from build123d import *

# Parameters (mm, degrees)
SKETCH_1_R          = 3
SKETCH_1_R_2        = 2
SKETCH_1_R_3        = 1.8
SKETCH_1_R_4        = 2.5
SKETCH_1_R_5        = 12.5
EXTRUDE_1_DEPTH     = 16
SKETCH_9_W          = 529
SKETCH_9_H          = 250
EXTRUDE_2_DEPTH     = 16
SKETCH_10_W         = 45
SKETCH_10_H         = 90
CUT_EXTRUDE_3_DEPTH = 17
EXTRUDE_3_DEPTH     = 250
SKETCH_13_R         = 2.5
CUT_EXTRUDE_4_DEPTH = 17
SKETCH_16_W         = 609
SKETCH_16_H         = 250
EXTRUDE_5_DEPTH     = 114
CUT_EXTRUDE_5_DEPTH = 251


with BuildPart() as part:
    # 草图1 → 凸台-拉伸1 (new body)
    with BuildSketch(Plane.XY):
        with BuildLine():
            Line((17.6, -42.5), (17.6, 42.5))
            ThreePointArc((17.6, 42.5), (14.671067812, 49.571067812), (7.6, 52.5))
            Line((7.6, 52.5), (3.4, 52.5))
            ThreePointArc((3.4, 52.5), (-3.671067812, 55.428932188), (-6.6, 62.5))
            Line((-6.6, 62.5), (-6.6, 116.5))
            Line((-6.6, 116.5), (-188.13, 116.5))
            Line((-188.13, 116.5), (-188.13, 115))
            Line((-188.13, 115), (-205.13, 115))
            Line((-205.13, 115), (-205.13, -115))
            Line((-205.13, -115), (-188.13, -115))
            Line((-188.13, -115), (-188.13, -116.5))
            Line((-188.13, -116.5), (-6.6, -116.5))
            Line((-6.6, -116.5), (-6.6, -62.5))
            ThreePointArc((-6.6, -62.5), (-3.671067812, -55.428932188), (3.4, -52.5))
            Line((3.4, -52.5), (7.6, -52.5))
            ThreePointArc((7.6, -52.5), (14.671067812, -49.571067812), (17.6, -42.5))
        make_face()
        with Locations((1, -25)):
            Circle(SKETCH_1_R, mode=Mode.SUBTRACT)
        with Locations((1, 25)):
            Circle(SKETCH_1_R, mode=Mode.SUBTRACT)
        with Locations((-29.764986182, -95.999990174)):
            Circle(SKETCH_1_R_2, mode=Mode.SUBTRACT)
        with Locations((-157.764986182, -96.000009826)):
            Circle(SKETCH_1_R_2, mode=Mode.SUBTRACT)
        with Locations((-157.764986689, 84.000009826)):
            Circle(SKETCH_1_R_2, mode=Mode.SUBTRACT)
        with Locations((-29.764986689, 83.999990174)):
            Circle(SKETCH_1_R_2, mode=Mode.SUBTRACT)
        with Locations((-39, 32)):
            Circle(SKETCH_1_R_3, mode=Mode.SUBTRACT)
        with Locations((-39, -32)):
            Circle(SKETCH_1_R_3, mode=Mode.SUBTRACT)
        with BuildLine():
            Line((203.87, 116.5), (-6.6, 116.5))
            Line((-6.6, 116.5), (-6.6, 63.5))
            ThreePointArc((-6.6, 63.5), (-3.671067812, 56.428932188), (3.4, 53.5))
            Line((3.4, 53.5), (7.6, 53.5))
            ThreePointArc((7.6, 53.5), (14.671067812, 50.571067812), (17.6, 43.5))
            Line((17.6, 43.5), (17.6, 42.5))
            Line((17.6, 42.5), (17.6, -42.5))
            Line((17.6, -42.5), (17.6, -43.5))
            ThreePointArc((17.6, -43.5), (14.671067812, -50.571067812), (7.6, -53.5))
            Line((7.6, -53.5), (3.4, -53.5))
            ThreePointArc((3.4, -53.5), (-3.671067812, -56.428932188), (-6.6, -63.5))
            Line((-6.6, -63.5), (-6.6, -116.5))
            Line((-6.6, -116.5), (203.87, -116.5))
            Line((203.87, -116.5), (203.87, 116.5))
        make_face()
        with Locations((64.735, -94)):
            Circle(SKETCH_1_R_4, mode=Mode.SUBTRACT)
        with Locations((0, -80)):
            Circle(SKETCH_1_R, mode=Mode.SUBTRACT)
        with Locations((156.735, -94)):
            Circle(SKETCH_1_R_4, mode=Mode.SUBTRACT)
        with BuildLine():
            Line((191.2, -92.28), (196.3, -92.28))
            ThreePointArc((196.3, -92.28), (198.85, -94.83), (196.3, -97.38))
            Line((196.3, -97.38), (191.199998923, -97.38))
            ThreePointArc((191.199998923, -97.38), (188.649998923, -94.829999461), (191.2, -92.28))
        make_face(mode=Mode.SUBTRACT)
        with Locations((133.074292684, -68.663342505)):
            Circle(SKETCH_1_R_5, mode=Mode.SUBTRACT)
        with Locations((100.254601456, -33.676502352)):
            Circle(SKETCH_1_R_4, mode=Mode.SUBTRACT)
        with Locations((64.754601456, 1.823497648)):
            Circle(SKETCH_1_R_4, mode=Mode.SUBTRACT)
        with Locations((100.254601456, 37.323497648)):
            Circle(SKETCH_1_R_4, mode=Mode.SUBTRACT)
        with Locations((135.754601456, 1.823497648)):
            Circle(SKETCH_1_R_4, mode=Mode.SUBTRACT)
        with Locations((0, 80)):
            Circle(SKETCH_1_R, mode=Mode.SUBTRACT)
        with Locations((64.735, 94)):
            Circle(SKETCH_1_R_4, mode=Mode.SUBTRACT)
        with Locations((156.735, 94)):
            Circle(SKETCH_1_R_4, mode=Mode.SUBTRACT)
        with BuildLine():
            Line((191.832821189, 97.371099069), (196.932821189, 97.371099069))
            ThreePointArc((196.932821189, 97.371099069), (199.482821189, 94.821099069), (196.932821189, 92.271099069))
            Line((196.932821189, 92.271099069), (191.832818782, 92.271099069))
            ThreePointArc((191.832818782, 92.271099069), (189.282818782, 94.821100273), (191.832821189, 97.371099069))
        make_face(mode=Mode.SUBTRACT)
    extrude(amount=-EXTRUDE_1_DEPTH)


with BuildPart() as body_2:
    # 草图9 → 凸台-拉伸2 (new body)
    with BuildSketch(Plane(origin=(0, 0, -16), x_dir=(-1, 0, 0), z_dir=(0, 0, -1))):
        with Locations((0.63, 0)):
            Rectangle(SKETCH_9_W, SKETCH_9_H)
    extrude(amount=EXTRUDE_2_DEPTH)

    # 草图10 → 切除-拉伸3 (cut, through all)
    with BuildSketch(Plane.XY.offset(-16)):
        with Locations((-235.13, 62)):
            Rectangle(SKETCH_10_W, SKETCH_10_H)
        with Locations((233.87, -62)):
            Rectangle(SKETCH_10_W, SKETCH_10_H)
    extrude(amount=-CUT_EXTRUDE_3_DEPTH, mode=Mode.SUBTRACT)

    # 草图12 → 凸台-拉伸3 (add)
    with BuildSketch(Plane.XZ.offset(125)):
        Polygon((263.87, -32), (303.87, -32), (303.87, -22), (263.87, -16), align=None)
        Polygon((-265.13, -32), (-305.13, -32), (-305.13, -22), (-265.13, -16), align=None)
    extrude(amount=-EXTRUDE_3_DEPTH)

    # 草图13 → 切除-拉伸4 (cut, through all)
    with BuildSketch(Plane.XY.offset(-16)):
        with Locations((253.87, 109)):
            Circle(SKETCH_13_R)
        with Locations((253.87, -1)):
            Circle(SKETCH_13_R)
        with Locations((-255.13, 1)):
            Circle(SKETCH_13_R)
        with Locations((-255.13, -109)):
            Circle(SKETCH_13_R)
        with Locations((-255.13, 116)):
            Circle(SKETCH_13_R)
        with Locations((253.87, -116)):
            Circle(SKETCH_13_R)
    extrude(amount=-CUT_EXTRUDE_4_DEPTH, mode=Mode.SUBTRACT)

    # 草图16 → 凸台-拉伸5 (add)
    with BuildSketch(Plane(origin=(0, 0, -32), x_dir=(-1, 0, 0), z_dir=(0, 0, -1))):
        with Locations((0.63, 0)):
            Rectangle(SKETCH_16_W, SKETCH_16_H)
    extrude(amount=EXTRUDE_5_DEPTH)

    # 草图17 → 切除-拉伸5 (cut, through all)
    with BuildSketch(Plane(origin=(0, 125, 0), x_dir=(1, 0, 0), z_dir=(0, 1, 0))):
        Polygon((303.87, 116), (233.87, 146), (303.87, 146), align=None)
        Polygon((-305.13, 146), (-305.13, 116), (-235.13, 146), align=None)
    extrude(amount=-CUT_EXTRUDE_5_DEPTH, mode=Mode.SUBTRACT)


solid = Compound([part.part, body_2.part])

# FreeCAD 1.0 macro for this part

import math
import FreeCAD as App
import Part
import Sketcher
Q = App.Units.Quantity

doc = App.newDocument("Part")
body = doc.addObject("PartDesign::Body", "Body")

# Sketch on XY plane
sketch1 = doc.addObject("Sketcher::SketchObject", "Sketch")
body.addObject(sketch1)
sketch1.AttachmentSupport = (doc.XY_Plane, [""])
sketch1.MapMode = "FlatFace"
sketch1.addGeometry(Part.LineSegment(App.Vector(-188.1, -116.5, 0), App.Vector(203.9, -116.5, 0)), False)
sketch1.addGeometry(Part.LineSegment(App.Vector(203.9, -116.5, 0), App.Vector(203.9, 116.5, 0)), False)
sketch1.addGeometry(Part.LineSegment(App.Vector(203.9, 116.5, 0), App.Vector(-188.1, 116.5, 0)), False)
sketch1.addGeometry(Part.LineSegment(App.Vector(-188.1, 116.5, 0), App.Vector(-188.1, 115, 0)), False)
sketch1.addGeometry(Part.LineSegment(App.Vector(-188.1, 115, 0), App.Vector(-205.1, 115, 0)), False)
sketch1.addGeometry(Part.LineSegment(App.Vector(-205.1, 115, 0), App.Vector(-205.1, -115, 0)), False)
sketch1.addGeometry(Part.LineSegment(App.Vector(-205.1, -115, 0), App.Vector(-188.1, -115, 0)), False)
sketch1.addGeometry(Part.LineSegment(App.Vector(-188.1, -115, 0), App.Vector(-188.1, -116.5, 0)), False)
sketch1.addGeometry(Part.Circle(App.Vector(-157.8, -96, 0), App.Vector(0, 0, 1), 2), False)
sketch1.addGeometry(Part.Circle(App.Vector(-29.8, -96, 0), App.Vector(0, 0, 1), 2), False)
sketch1.addGeometry(Part.Circle(App.Vector(0, -80, 0), App.Vector(0, 0, 1), 3), False)
sketch1.addGeometry(Part.ArcOfCircle(Part.Circle(App.Vector(7.6, -42.5, 0), App.Vector(0, 0, 1), 10), math.radians(-90), math.radians(0)), False)
sketch1.addGeometry(Part.LineSegment(App.Vector(17.6, -42.5, 0), App.Vector(17.6, -43.5, 0)), False)
sketch1.addGeometry(Part.ArcOfCircle(Part.Circle(App.Vector(7.6, -43.5, 0), App.Vector(0, 0, 1), 10), math.radians(-90), math.radians(0)), False)
sketch1.addGeometry(Part.LineSegment(App.Vector(7.6, -53.5, 0), App.Vector(3.4, -53.5, 0)), False)
sketch1.addGeometry(Part.ArcOfCircle(Part.Circle(App.Vector(3.4, -63.5, 0), App.Vector(0, 0, 1), 10), math.radians(90), math.radians(180)), False)
sketch1.addGeometry(Part.LineSegment(App.Vector(-6.6, -63.5, 0), App.Vector(-6.6, -62.5, 0)), False)
sketch1.addGeometry(Part.ArcOfCircle(Part.Circle(App.Vector(3.4, -62.5, 0), App.Vector(0, 0, 1), 10), math.radians(90), math.radians(180)), False)
sketch1.addGeometry(Part.LineSegment(App.Vector(3.4, -52.5, 0), App.Vector(7.6, -52.5, 0)), False)
sketch1.addGeometry(Part.Circle(App.Vector(-39, -32, 0), App.Vector(0, 0, 1), 1.8), False)
sketch1.addGeometry(Part.Circle(App.Vector(1, -25, 0), App.Vector(0, 0, 1), 3), False)
sketch1.addGeometry(Part.Circle(App.Vector(64.7, -94, 0), App.Vector(0, 0, 1), 2.5), False)
sketch1.addGeometry(Part.Circle(App.Vector(156.7, -94, 0), App.Vector(0, 0, 1), 2.5), False)
sketch1.addGeometry(Part.ArcOfCircle(Part.Circle(App.Vector(191.2, -94.8, 0), App.Vector(0, 0, 1), 2.5), math.radians(90), math.radians(270)), False)
sketch1.addGeometry(Part.LineSegment(App.Vector(191.2, -92.3, 0), App.Vector(196.3, -92.3, 0)), False)
sketch1.addGeometry(Part.ArcOfCircle(Part.Circle(App.Vector(196.3, -94.8, 0), App.Vector(0, 0, 1), 2.5), math.radians(-90), math.radians(90)), False)
sketch1.addGeometry(Part.LineSegment(App.Vector(196.3, -97.4, 0), App.Vector(191.2, -97.4, 0)), False)
sketch1.addGeometry(Part.Circle(App.Vector(133.1, -68.7, 0), App.Vector(0, 0, 1), 12.5), False)
sketch1.addGeometry(Part.Circle(App.Vector(100.3, -33.7, 0), App.Vector(0, 0, 1), 2.5), False)
sketch1.addGeometry(Part.Circle(App.Vector(-39, 32, 0), App.Vector(0, 0, 1), 1.8), False)
sketch1.addGeometry(Part.Circle(App.Vector(1, 25, 0), App.Vector(0, 0, 1), 3), False)
sketch1.addGeometry(Part.Circle(App.Vector(-157.8, 84, 0), App.Vector(0, 0, 1), 2), False)
sketch1.addGeometry(Part.ArcOfCircle(Part.Circle(App.Vector(7.6, 42.5, 0), App.Vector(0, 0, 1), 10), math.radians(0), math.radians(90)), False)
sketch1.addGeometry(Part.LineSegment(App.Vector(7.6, 52.5, 0), App.Vector(3.4, 52.5, 0)), False)
sketch1.addGeometry(Part.ArcOfCircle(Part.Circle(App.Vector(3.4, 62.5, 0), App.Vector(0, 0, 1), 10), math.radians(180), math.radians(270)), False)
sketch1.addGeometry(Part.LineSegment(App.Vector(-6.6, 62.5, 0), App.Vector(-6.6, 63.5, 0)), False)
sketch1.addGeometry(Part.ArcOfCircle(Part.Circle(App.Vector(3.4, 63.5, 0), App.Vector(0, 0, 1), 10), math.radians(180), math.radians(270)), False)
sketch1.addGeometry(Part.LineSegment(App.Vector(3.4, 53.5, 0), App.Vector(7.6, 53.5, 0)), False)
sketch1.addGeometry(Part.ArcOfCircle(Part.Circle(App.Vector(7.6, 43.5, 0), App.Vector(0, 0, 1), 10), math.radians(0), math.radians(90)), False)
sketch1.addGeometry(Part.LineSegment(App.Vector(17.6, 43.5, 0), App.Vector(17.6, 42.5, 0)), False)
sketch1.addGeometry(Part.Circle(App.Vector(-29.8, 84, 0), App.Vector(0, 0, 1), 2), False)
sketch1.addGeometry(Part.Circle(App.Vector(0, 80, 0), App.Vector(0, 0, 1), 3), False)
sketch1.addGeometry(Part.Circle(App.Vector(64.8, 1.8, 0), App.Vector(0, 0, 1), 2.5), False)
sketch1.addGeometry(Part.Circle(App.Vector(100.3, 37.3, 0), App.Vector(0, 0, 1), 2.5), False)
sketch1.addGeometry(Part.Circle(App.Vector(135.8, 1.8, 0), App.Vector(0, 0, 1), 2.5), False)
sketch1.addGeometry(Part.Circle(App.Vector(64.7, 94, 0), App.Vector(0, 0, 1), 2.5), False)
sketch1.addGeometry(Part.Circle(App.Vector(156.7, 94, 0), App.Vector(0, 0, 1), 2.5), False)
sketch1.addGeometry(Part.ArcOfCircle(Part.Circle(App.Vector(191.8, 94.8, 0), App.Vector(0, 0, 1), 2.5), math.radians(90), math.radians(270)), False)
sketch1.addGeometry(Part.LineSegment(App.Vector(191.8, 97.4, 0), App.Vector(196.9, 97.4, 0)), False)
sketch1.addGeometry(Part.ArcOfCircle(Part.Circle(App.Vector(196.9, 94.8, 0), App.Vector(0, 0, 1), 2.5), math.radians(-90), math.radians(90)), False)
sketch1.addGeometry(Part.LineSegment(App.Vector(196.9, 92.3, 0), App.Vector(191.8, 92.3, 0)), False)
sketch1.addConstraint(Sketcher.Constraint("Coincident", 0, 2, 1, 1))
sketch1.addConstraint(Sketcher.Constraint("Coincident", 1, 2, 2, 1))
sketch1.addConstraint(Sketcher.Constraint("Coincident", 2, 2, 3, 1))
sketch1.addConstraint(Sketcher.Constraint("Coincident", 3, 2, 4, 1))
sketch1.addConstraint(Sketcher.Constraint("Coincident", 4, 2, 5, 1))
sketch1.addConstraint(Sketcher.Constraint("Coincident", 5, 2, 6, 1))
sketch1.addConstraint(Sketcher.Constraint("Coincident", 6, 2, 7, 1))
sketch1.addConstraint(Sketcher.Constraint("Coincident", 7, 2, 0, 1))
sketch1.addConstraint(Sketcher.Constraint("Tangent", 11, 2, 12, 1))
sketch1.addConstraint(Sketcher.Constraint("Tangent", 12, 2, 13, 2))
sketch1.addConstraint(Sketcher.Constraint("Tangent", 13, 1, 14, 1))
sketch1.addConstraint(Sketcher.Constraint("Tangent", 14, 2, 15, 1))
sketch1.addConstraint(Sketcher.Constraint("Tangent", 15, 2, 16, 1))
sketch1.addConstraint(Sketcher.Constraint("Tangent", 16, 2, 17, 2))
sketch1.addConstraint(Sketcher.Constraint("Tangent", 17, 1, 18, 1))
sketch1.addConstraint(Sketcher.Constraint("Tangent", 18, 2, 11, 1))
sketch1.addConstraint(Sketcher.Constraint("Tangent", 23, 1, 24, 1))
sketch1.addConstraint(Sketcher.Constraint("Tangent", 24, 2, 25, 2))
sketch1.addConstraint(Sketcher.Constraint("Tangent", 25, 1, 26, 1))
sketch1.addConstraint(Sketcher.Constraint("Tangent", 26, 2, 23, 2))
sketch1.addConstraint(Sketcher.Constraint("Tangent", 32, 2, 33, 1))
sketch1.addConstraint(Sketcher.Constraint("Tangent", 33, 2, 34, 2))
sketch1.addConstraint(Sketcher.Constraint("Tangent", 34, 1, 35, 1))
sketch1.addConstraint(Sketcher.Constraint("Tangent", 35, 2, 36, 1))
sketch1.addConstraint(Sketcher.Constraint("Tangent", 36, 2, 37, 1))
sketch1.addConstraint(Sketcher.Constraint("Tangent", 37, 2, 38, 2))
sketch1.addConstraint(Sketcher.Constraint("Tangent", 38, 1, 39, 1))
sketch1.addConstraint(Sketcher.Constraint("Tangent", 39, 2, 32, 1))
sketch1.addConstraint(Sketcher.Constraint("Tangent", 47, 1, 48, 1))
sketch1.addConstraint(Sketcher.Constraint("Tangent", 48, 2, 49, 2))
sketch1.addConstraint(Sketcher.Constraint("Tangent", 49, 1, 50, 1))
sketch1.addConstraint(Sketcher.Constraint("Tangent", 50, 2, 47, 2))
sketch1.addConstraint(Sketcher.Constraint("Horizontal", 0))
sketch1.addConstraint(Sketcher.Constraint("Vertical", 1))
sketch1.addConstraint(Sketcher.Constraint("Horizontal", 2))
sketch1.addConstraint(Sketcher.Constraint("Vertical", 3))
sketch1.addConstraint(Sketcher.Constraint("Horizontal", 4))
sketch1.addConstraint(Sketcher.Constraint("Vertical", 5))
sketch1.addConstraint(Sketcher.Constraint("Horizontal", 6))
sketch1.addConstraint(Sketcher.Constraint("Vertical", 7))
sketch1.addConstraint(Sketcher.Constraint("Vertical", 12))
sketch1.addConstraint(Sketcher.Constraint("Horizontal", 14))
sketch1.addConstraint(Sketcher.Constraint("Vertical", 16))
sketch1.addConstraint(Sketcher.Constraint("Horizontal", 18))
sketch1.addConstraint(Sketcher.Constraint("Horizontal", 24))
sketch1.addConstraint(Sketcher.Constraint("Horizontal", 26))
sketch1.addConstraint(Sketcher.Constraint("Horizontal", 33))
sketch1.addConstraint(Sketcher.Constraint("Vertical", 35))
sketch1.addConstraint(Sketcher.Constraint("Horizontal", 37))
sketch1.addConstraint(Sketcher.Constraint("Vertical", 39))
sketch1.addConstraint(Sketcher.Constraint("Horizontal", 48))
sketch1.addConstraint(Sketcher.Constraint("Horizontal", 50))
sketch1.addConstraint(Sketcher.Constraint("Equal", 8, 9))
sketch1.addConstraint(Sketcher.Constraint("Equal", 11, 13))
sketch1.addConstraint(Sketcher.Constraint("Equal", 13, 15))
sketch1.addConstraint(Sketcher.Constraint("Equal", 15, 17))
sketch1.addConstraint(Sketcher.Constraint("Equal", 10, 20))
sketch1.addConstraint(Sketcher.Constraint("Equal", 21, 22))
sketch1.addConstraint(Sketcher.Constraint("Equal", 22, 28))
sketch1.addConstraint(Sketcher.Constraint("Equal", 19, 29))
sketch1.addConstraint(Sketcher.Constraint("Equal", 20, 30))
sketch1.addConstraint(Sketcher.Constraint("Equal", 9, 31))
sketch1.addConstraint(Sketcher.Constraint("Equal", 17, 32))
sketch1.addConstraint(Sketcher.Constraint("Equal", 32, 34))
sketch1.addConstraint(Sketcher.Constraint("Equal", 34, 36))
sketch1.addConstraint(Sketcher.Constraint("Equal", 36, 38))
sketch1.addConstraint(Sketcher.Constraint("Equal", 31, 40))
sketch1.addConstraint(Sketcher.Constraint("Equal", 30, 41))
sketch1.addConstraint(Sketcher.Constraint("Equal", 28, 42))
sketch1.addConstraint(Sketcher.Constraint("Equal", 42, 43))
sketch1.addConstraint(Sketcher.Constraint("Equal", 43, 44))
sketch1.addConstraint(Sketcher.Constraint("Equal", 44, 45))
sketch1.addConstraint(Sketcher.Constraint("Equal", 45, 46))
sketch1.addConstraint(Sketcher.Constraint("Equal", 25, 47))
sketch1.addConstraint(Sketcher.Constraint("Symmetric", 10, 3, 41, 3, -1, 1))
sketch1.addConstraint(Sketcher.Constraint("Symmetric", 19, 3, 29, 3, -1))
sketch1.addConstraint(Sketcher.Constraint("Symmetric", 20, 3, 30, 3, -1))
sketch1.addConstraint(Sketcher.Constraint("Symmetric", 11, 3, 32, 3, -1))
sketch1.addConstraint(Sketcher.Constraint("Symmetric", 15, 3, 36, 3, -1))
sketch1.addConstraint(Sketcher.Constraint("Symmetric", 21, 3, 45, 3, -1))
sketch1.addConstraint(Sketcher.Constraint("Symmetric", 22, 3, 46, 3, -1))
sketch1.addConstraint(Sketcher.Constraint("Symmetric", 3, 2, 6, 2, -1))
sketch1.addConstraint(Sketcher.Constraint("PointOnObject", 10, 3, -2))
sketch1.addConstraint(Sketcher.Constraint("Horizontal", 21, 3, 22, 3))
sketch1.addConstraint(Sketcher.Constraint("Horizontal", 42, 3, 44, 3))
sketch1.addConstraint(Sketcher.Constraint("Vertical", 8, 3, 31, 3))
sketch1.addConstraint(Sketcher.Constraint("Vertical", 9, 3, 40, 3))
sketch1.addConstraint(Sketcher.Constraint("Vertical", 28, 3, 43, 3))
sketch1.addConstraint(Sketcher.Constraint("Equal", 26, 48))
sketch1.addConstraint(Sketcher.Constraint("Equal", 3, 7))
sketch1.addConstraint(Sketcher.Constraint("Diameter", 8, Q("4 mm")))
sketch1.addConstraint(Sketcher.Constraint("Diameter", 10, Q("6 mm")))
sketch1.addConstraint(Sketcher.Constraint("Diameter", 21, Q("5 mm")))
sketch1.addConstraint(Sketcher.Constraint("Diameter", 27, Q("25 mm")))
sketch1.addConstraint(Sketcher.Constraint("Radius", 11, Q("10 mm")))
sketch1.addConstraint(Sketcher.Constraint("Diameter", 19, Q("3.6 mm")))
sketch1.addConstraint(Sketcher.Constraint("DistanceX", 0, 1, 0, 2, Q("392 mm")))
sketch1.addConstraint(Sketcher.Constraint("DistanceX", 4, 2, 4, 1, Q("17 mm")))
sketch1.addConstraint(Sketcher.Constraint("DistanceY", 1, 1, 1, 2, Q("233 mm")))
sketch1.addConstraint(Sketcher.Constraint("DistanceY", 5, 2, 5, 1, Q("230 mm")))
sketch1.addConstraint(Sketcher.Constraint("DistanceY", 12, 2, 12, 1, Q("1 mm")))
sketch1.addConstraint(Sketcher.Constraint("Radius", 23, Q("2.55 mm")))
sketch1.addConstraint(Sketcher.Constraint("DistanceX", 14, 2, 14, 1, Q("4.2 mm")))
sketch1.addConstraint(Sketcher.Constraint("DistanceX", 24, 1, 24, 2, Q("5.1 mm")))
sketch1.addConstraint(Sketcher.Constraint("DistanceY", 10, 3, -1, 1, Q("80 mm")))
sketch1.addConstraint(Sketcher.Constraint("DistanceX", 19, 3, -1, 1, Q("39 mm")))
sketch1.addConstraint(Sketcher.Constraint("DistanceY", 19, 3, -1, 1, Q("32 mm")))
sketch1.addConstraint(Sketcher.Constraint("DistanceX", -1, 1, 20, 3, Q("1 mm")))
sketch1.addConstraint(Sketcher.Constraint("DistanceY", 20, 3, -1, 1, Q("25 mm")))
sketch1.addConstraint(Sketcher.Constraint("DistanceY", 21, 3, -1, 1, Q("94 mm")))
sketch1.addConstraint(Sketcher.Constraint("DistanceX", -1, 1, 11, 3, Q("7.6 mm")))
sketch1.addConstraint(Sketcher.Constraint("DistanceY", 11, 3, -1, 1, Q("42.5 mm")))
sketch1.addConstraint(Sketcher.Constraint("DistanceX", -1, 1, 23, 3, Q("191.199999 mm")))
sketch1.addConstraint(Sketcher.Constraint("DistanceY", 23, 3, -1, 1, Q("94.83 mm")))
sketch1.addConstraint(Sketcher.Constraint("DistanceX", -1, 1, 0, 2, Q("203.87 mm")))
sketch1.addConstraint(Sketcher.Constraint("DistanceX", -1, 1, 21, 3, Q("64.735 mm")))
sketch1.addConstraint(Sketcher.Constraint("DistanceX", -1, 1, 22, 3, Q("156.735 mm")))
sketch1.addConstraint(Sketcher.Constraint("DistanceX", -1, 1, 28, 3, Q("100.254601 mm")))
sketch1.addConstraint(Sketcher.Constraint("DistanceX", -1, 1, 42, 3, Q("64.754601 mm")))
sketch1.addConstraint(Sketcher.Constraint("DistanceX", -1, 1, 44, 3, Q("135.754601 mm")))
sketch1.addConstraint(Sketcher.Constraint("DistanceY", -1, 1, 47, 3, Q("94.821099 mm")))
sketch1.addConstraint(Sketcher.Constraint("DistanceY", 8, 3, -1, 1, Q("96.00001 mm")))
sketch1.addConstraint(Sketcher.Constraint("DistanceY", 9, 3, -1, 1, Q("95.99999 mm")))
sketch1.addConstraint(Sketcher.Constraint("DistanceY", -1, 1, 31, 3, Q("84.00001 mm")))
sketch1.addConstraint(Sketcher.Constraint("DistanceY", -1, 1, 40, 3, Q("83.99999 mm")))
sketch1.addConstraint(Sketcher.Constraint("DistanceX", -1, 1, 47, 3, Q("191.832819 mm")))
sketch1.addConstraint(Sketcher.Constraint("DistanceX", 8, 3, -1, 1, Q("157.764986 mm")))
sketch1.addConstraint(Sketcher.Constraint("DistanceX", 9, 3, -1, 1, Q("29.764986 mm")))
sketch1.addConstraint(Sketcher.Constraint("DistanceX", -1, 1, 27, 3, Q("133.074293 mm")))
sketch1.addConstraint(Sketcher.Constraint("DistanceY", 27, 3, -1, 1, Q("68.663343 mm")))
sketch1.addConstraint(Sketcher.Constraint("DistanceY", 28, 3, -1, 1, Q("33.676502 mm")))
sketch1.addConstraint(Sketcher.Constraint("DistanceY", -1, 1, 42, 3, Q("1.823498 mm")))
sketch1.addConstraint(Sketcher.Constraint("DistanceY", -1, 1, 43, 3, Q("37.323498 mm")))
pad1 = doc.addObject("PartDesign::Pad", "Pad")
body.addObject(pad1)
pad1.Profile = sketch1
pad1.Length = 16
pad1.Reversed = True
body2 = doc.addObject("PartDesign::Body", "Body001")

# Sketch on XY plane
sketch2 = doc.addObject("Sketcher::SketchObject", "Sketch001")
body2.addObject(sketch2)
sketch2.AttachmentSupport = (doc.getObject("XY_Plane001"), [""])
sketch2.MapMode = "FlatFace"
sketch2.AttachmentOffset = App.Placement(App.Vector(0, 0, -16), App.Rotation())
sketch2.addGeometry(Part.LineSegment(App.Vector(264, 125, 0), App.Vector(264, -125, 0)), False)
sketch2.addGeometry(Part.LineSegment(App.Vector(264, -125, 0), App.Vector(-265, -125, 0)), False)
sketch2.addGeometry(Part.LineSegment(App.Vector(-265, -125, 0), App.Vector(-265, 125, 0)), False)
sketch2.addGeometry(Part.LineSegment(App.Vector(-265, 125, 0), App.Vector(264, 125, 0)), False)
sketch2.addConstraint(Sketcher.Constraint("Coincident", 0, 2, 1, 1))
sketch2.addConstraint(Sketcher.Constraint("Coincident", 1, 2, 2, 1))
sketch2.addConstraint(Sketcher.Constraint("Coincident", 2, 2, 3, 1))
sketch2.addConstraint(Sketcher.Constraint("Coincident", 3, 2, 0, 1))
sketch2.addConstraint(Sketcher.Constraint("Vertical", 0))
sketch2.addConstraint(Sketcher.Constraint("Horizontal", 1))
sketch2.addConstraint(Sketcher.Constraint("Vertical", 2))
sketch2.addConstraint(Sketcher.Constraint("Horizontal", 3))
sketch2.addConstraint(Sketcher.Constraint("DistanceX", 1, 2, 1, 1, Q("529 mm")))
sketch2.addConstraint(Sketcher.Constraint("DistanceY", 0, 2, 0, 1, Q("250 mm")))
sketch2.addConstraint(Sketcher.Constraint("DistanceY", 0, 2, -1, 1, Q("125 mm")))
sketch2.addConstraint(Sketcher.Constraint("DistanceX", -1, 1, 0, 2, Q("263.87 mm")))
pad2 = doc.addObject("PartDesign::Pad", "Pad001")
body2.addObject(pad2)
pad2.Profile = sketch2
pad2.Length = 16
pad2.Reversed = True

# Sketch on XY plane
sketch3 = doc.addObject("Sketcher::SketchObject", "Sketch002")
body2.addObject(sketch3)
sketch3.AttachmentSupport = (doc.getObject("XY_Plane001"), [""])
sketch3.MapMode = "FlatFace"
sketch3.AttachmentOffset = App.Placement(App.Vector(0, 0, -16), App.Rotation())
sketch3.addGeometry(Part.LineSegment(App.Vector(-258, 107, 0), App.Vector(-258, 17, 0)), False)
sketch3.addGeometry(Part.LineSegment(App.Vector(-258, 17, 0), App.Vector(-213, 17, 0)), False)
sketch3.addGeometry(Part.LineSegment(App.Vector(-213, 17, 0), App.Vector(-213, 107, 0)), False)
sketch3.addGeometry(Part.LineSegment(App.Vector(-213, 107, 0), App.Vector(-258, 107, 0)), False)
sketch3.addGeometry(Part.LineSegment(App.Vector(211, -17, 0), App.Vector(211, -107, 0)), False)
sketch3.addGeometry(Part.LineSegment(App.Vector(211, -107, 0), App.Vector(256, -107, 0)), False)
sketch3.addGeometry(Part.LineSegment(App.Vector(256, -107, 0), App.Vector(256, -17, 0)), False)
sketch3.addGeometry(Part.LineSegment(App.Vector(256, -17, 0), App.Vector(211, -17, 0)), False)
sketch3.addConstraint(Sketcher.Constraint("Coincident", 0, 2, 1, 1))
sketch3.addConstraint(Sketcher.Constraint("Coincident", 1, 2, 2, 1))
sketch3.addConstraint(Sketcher.Constraint("Coincident", 2, 2, 3, 1))
sketch3.addConstraint(Sketcher.Constraint("Coincident", 3, 2, 0, 1))
sketch3.addConstraint(Sketcher.Constraint("Coincident", 4, 2, 5, 1))
sketch3.addConstraint(Sketcher.Constraint("Coincident", 5, 2, 6, 1))
sketch3.addConstraint(Sketcher.Constraint("Coincident", 6, 2, 7, 1))
sketch3.addConstraint(Sketcher.Constraint("Coincident", 7, 2, 4, 1))
sketch3.addConstraint(Sketcher.Constraint("Vertical", 0))
sketch3.addConstraint(Sketcher.Constraint("Horizontal", 1))
sketch3.addConstraint(Sketcher.Constraint("Vertical", 2))
sketch3.addConstraint(Sketcher.Constraint("Horizontal", 3))
sketch3.addConstraint(Sketcher.Constraint("Vertical", 4))
sketch3.addConstraint(Sketcher.Constraint("Horizontal", 5))
sketch3.addConstraint(Sketcher.Constraint("Vertical", 6))
sketch3.addConstraint(Sketcher.Constraint("Horizontal", 7))
sketch3.addConstraint(Sketcher.Constraint("Equal", 3, 5))
sketch3.addConstraint(Sketcher.Constraint("Equal", 2, 4))
sketch3.addConstraint(Sketcher.Constraint("DistanceX", 1, 1, 1, 2, Q("45 mm")))
sketch3.addConstraint(Sketcher.Constraint("DistanceY", 0, 2, 0, 1, Q("90 mm")))
sketch3.addConstraint(Sketcher.Constraint("DistanceY", -1, 1, 0, 2, Q("17 mm")))
sketch3.addConstraint(Sketcher.Constraint("DistanceY", 4, 2, -1, 1, Q("107 mm")))
sketch3.addConstraint(Sketcher.Constraint("DistanceX", 1, 2, 4, 2, Q("424 mm")))
sketch3.addConstraint(Sketcher.Constraint("DistanceX", 0, 2, -1, 1, Q("257.63 mm")))
pocket1 = doc.addObject("PartDesign::Pocket", "Pocket")
body2.addObject(pocket1)
pocket1.Profile = sketch3
pocket1.Type = "ThroughAll"

# Sketch on XZ plane
sketch4 = doc.addObject("Sketcher::SketchObject", "Sketch003")
body2.addObject(sketch4)
sketch4.AttachmentSupport = (doc.getObject("XZ_Plane001"), [""])
sketch4.MapMode = "FlatFace"
sketch4.AttachmentOffset = App.Placement(App.Vector(0, 0, 125), App.Rotation())
sketch4.addGeometry(Part.LineSegment(App.Vector(264, -32, 0), App.Vector(304, -32, 0)), False)
sketch4.addGeometry(Part.LineSegment(App.Vector(304, -32, 0), App.Vector(304, -22, 0)), False)
sketch4.addGeometry(Part.LineSegment(App.Vector(304, -22, 0), App.Vector(264, -16, 0)), False)
sketch4.addGeometry(Part.LineSegment(App.Vector(264, -16, 0), App.Vector(264, -32, 0)), False)
sketch4.addGeometry(Part.LineSegment(App.Vector(-305, -32, 0), App.Vector(-265, -32, 0)), False)
sketch4.addGeometry(Part.LineSegment(App.Vector(-265, -32, 0), App.Vector(-265, -16, 0)), False)
sketch4.addGeometry(Part.LineSegment(App.Vector(-265, -16, 0), App.Vector(-305, -22, 0)), False)
sketch4.addGeometry(Part.LineSegment(App.Vector(-305, -22, 0), App.Vector(-305, -32, 0)), False)
sketch4.addConstraint(Sketcher.Constraint("Coincident", 0, 2, 1, 1))
sketch4.addConstraint(Sketcher.Constraint("Coincident", 1, 2, 2, 1))
sketch4.addConstraint(Sketcher.Constraint("Coincident", 2, 2, 3, 1))
sketch4.addConstraint(Sketcher.Constraint("Coincident", 3, 2, 0, 1))
sketch4.addConstraint(Sketcher.Constraint("Coincident", 4, 2, 5, 1))
sketch4.addConstraint(Sketcher.Constraint("Coincident", 5, 2, 6, 1))
sketch4.addConstraint(Sketcher.Constraint("Coincident", 6, 2, 7, 1))
sketch4.addConstraint(Sketcher.Constraint("Coincident", 7, 2, 4, 1))
sketch4.addConstraint(Sketcher.Constraint("Horizontal", 0))
sketch4.addConstraint(Sketcher.Constraint("Vertical", 1))
sketch4.addConstraint(Sketcher.Constraint("Vertical", 3))
sketch4.addConstraint(Sketcher.Constraint("Horizontal", 4))
sketch4.addConstraint(Sketcher.Constraint("Vertical", 5))
sketch4.addConstraint(Sketcher.Constraint("Vertical", 7))
sketch4.addConstraint(Sketcher.Constraint("Horizontal", 3, 2, 4, 2))
sketch4.addConstraint(Sketcher.Constraint("Horizontal", 2, 2, 5, 2))
sketch4.addConstraint(Sketcher.Constraint("Horizontal", 1, 2, 6, 2))
sketch4.addConstraint(Sketcher.Constraint("Equal", 0, 4))
sketch4.addConstraint(Sketcher.Constraint("DistanceX", 0, 1, 0, 2, Q("40 mm")))
sketch4.addConstraint(Sketcher.Constraint("DistanceY", 1, 1, 1, 2, Q("10 mm")))
sketch4.addConstraint(Sketcher.Constraint("DistanceY", 3, 2, 3, 1, Q("16 mm")))
sketch4.addConstraint(Sketcher.Constraint("DistanceY", 0, 2, -1, 1, Q("32 mm")))
sketch4.addConstraint(Sketcher.Constraint("DistanceX", 4, 2, 3, 2, Q("529 mm")))
sketch4.addConstraint(Sketcher.Constraint("DistanceX", -1, 1, 0, 2, Q("303.87 mm")))
pad3 = doc.addObject("PartDesign::Pad", "Pad002")
body2.addObject(pad3)
pad3.Profile = sketch4
pad3.Length = 250
pad3.Reversed = True

# Sketch on XY plane
sketch5 = doc.addObject("Sketcher::SketchObject", "Sketch004")
body2.addObject(sketch5)
sketch5.AttachmentSupport = (doc.getObject("XY_Plane001"), [""])
sketch5.MapMode = "FlatFace"
sketch5.AttachmentOffset = App.Placement(App.Vector(0, 0, -16), App.Rotation())
sketch5.addGeometry(Part.Circle(App.Vector(253.9, 109, 0), App.Vector(0, 0, 1), 2.5), False)
sketch5.addGeometry(Part.Circle(App.Vector(253.9, -1, 0), App.Vector(0, 0, 1), 2.5), False)
sketch5.addGeometry(Part.Circle(App.Vector(-255.1, 1, 0), App.Vector(0, 0, 1), 2.5), False)
sketch5.addGeometry(Part.Circle(App.Vector(-255.1, -109, 0), App.Vector(0, 0, 1), 2.5), False)
sketch5.addGeometry(Part.Circle(App.Vector(-255.1, 116, 0), App.Vector(0, 0, 1), 2.5), False)
sketch5.addGeometry(Part.Circle(App.Vector(253.9, -116, 0), App.Vector(0, 0, 1), 2.5), False)
sketch5.addConstraint(Sketcher.Constraint("Equal", 0, 1))
sketch5.addConstraint(Sketcher.Constraint("Equal", 1, 2))
sketch5.addConstraint(Sketcher.Constraint("Equal", 2, 3))
sketch5.addConstraint(Sketcher.Constraint("Equal", 3, 4))
sketch5.addConstraint(Sketcher.Constraint("Equal", 4, 5))
sketch5.addConstraint(Sketcher.Constraint("Vertical", 0, 3, 1, 3))
sketch5.addConstraint(Sketcher.Constraint("Vertical", 2, 3, 3, 3))
sketch5.addConstraint(Sketcher.Constraint("Vertical", 3, 3, 4, 3))
sketch5.addConstraint(Sketcher.Constraint("Vertical", 1, 3, 5, 3))
sketch5.addConstraint(Sketcher.Constraint("Diameter", 0, Q("5 mm")))
sketch5.addConstraint(Sketcher.Constraint("DistanceY", -1, 1, 0, 3, Q("109 mm")))
sketch5.addConstraint(Sketcher.Constraint("DistanceY", 1, 3, -1, 1, Q("1 mm")))
sketch5.addConstraint(Sketcher.Constraint("DistanceY", -1, 1, 2, 3, Q("1 mm")))
sketch5.addConstraint(Sketcher.Constraint("DistanceY", 3, 3, -1, 1, Q("109 mm")))
sketch5.addConstraint(Sketcher.Constraint("DistanceY", -1, 1, 4, 3, Q("116 mm")))
sketch5.addConstraint(Sketcher.Constraint("DistanceY", 5, 3, -1, 1, Q("116 mm")))
sketch5.addConstraint(Sketcher.Constraint("DistanceX", 2, 3, 1, 3, Q("509 mm")))
sketch5.addConstraint(Sketcher.Constraint("DistanceX", -1, 1, 0, 3, Q("253.87 mm")))
pocket2 = doc.addObject("PartDesign::Pocket", "Pocket001")
body2.addObject(pocket2)
pocket2.Profile = sketch5
pocket2.Type = "ThroughAll"

# Sketch on XY plane
sketch6 = doc.addObject("Sketcher::SketchObject", "Sketch005")
body2.addObject(sketch6)
sketch6.AttachmentSupport = (doc.getObject("XY_Plane001"), [""])
sketch6.MapMode = "FlatFace"
sketch6.AttachmentOffset = App.Placement(App.Vector(0, 0, -32), App.Rotation())
sketch6.addGeometry(Part.LineSegment(App.Vector(304, 125, 0), App.Vector(304, -125, 0)), False)
sketch6.addGeometry(Part.LineSegment(App.Vector(304, -125, 0), App.Vector(-305, -125, 0)), False)
sketch6.addGeometry(Part.LineSegment(App.Vector(-305, -125, 0), App.Vector(-305, 125, 0)), False)
sketch6.addGeometry(Part.LineSegment(App.Vector(-305, 125, 0), App.Vector(304, 125, 0)), False)
sketch6.addConstraint(Sketcher.Constraint("Coincident", 0, 2, 1, 1))
sketch6.addConstraint(Sketcher.Constraint("Coincident", 1, 2, 2, 1))
sketch6.addConstraint(Sketcher.Constraint("Coincident", 2, 2, 3, 1))
sketch6.addConstraint(Sketcher.Constraint("Coincident", 3, 2, 0, 1))
sketch6.addConstraint(Sketcher.Constraint("Vertical", 0))
sketch6.addConstraint(Sketcher.Constraint("Horizontal", 1))
sketch6.addConstraint(Sketcher.Constraint("Vertical", 2))
sketch6.addConstraint(Sketcher.Constraint("Horizontal", 3))
sketch6.addConstraint(Sketcher.Constraint("DistanceX", 1, 2, 1, 1, Q("609 mm")))
sketch6.addConstraint(Sketcher.Constraint("DistanceY", 0, 2, 0, 1, Q("250 mm")))
sketch6.addConstraint(Sketcher.Constraint("DistanceY", 0, 2, -1, 1, Q("125 mm")))
sketch6.addConstraint(Sketcher.Constraint("DistanceX", -1, 1, 0, 2, Q("303.87 mm")))
pad4 = doc.addObject("PartDesign::Pad", "Pad003")
body2.addObject(pad4)
pad4.Profile = sketch6
pad4.Length = 114
pad4.Reversed = True

# Sketch on XZ plane
sketch7 = doc.addObject("Sketcher::SketchObject", "Sketch006")
body2.addObject(sketch7)
sketch7.AttachmentSupport = (doc.getObject("XZ_Plane001"), [""])
sketch7.MapMode = "FlatFace"
sketch7.AttachmentOffset = App.Placement(App.Vector(0, 0, -125), App.Rotation())
sketch7.addGeometry(Part.LineSegment(App.Vector(234, -146, 0), App.Vector(304, -116, 0)), False)
sketch7.addGeometry(Part.LineSegment(App.Vector(304, -116, 0), App.Vector(304, -146, 0)), False)
sketch7.addGeometry(Part.LineSegment(App.Vector(304, -146, 0), App.Vector(234, -146, 0)), False)
sketch7.addGeometry(Part.LineSegment(App.Vector(-305, -146, 0), App.Vector(-305, -116, 0)), False)
sketch7.addGeometry(Part.LineSegment(App.Vector(-305, -116, 0), App.Vector(-235, -146, 0)), False)
sketch7.addGeometry(Part.LineSegment(App.Vector(-235, -146, 0), App.Vector(-305, -146, 0)), False)
sketch7.addConstraint(Sketcher.Constraint("Coincident", 0, 2, 1, 1))
sketch7.addConstraint(Sketcher.Constraint("Coincident", 1, 2, 2, 1))
sketch7.addConstraint(Sketcher.Constraint("Coincident", 2, 2, 0, 1))
sketch7.addConstraint(Sketcher.Constraint("Coincident", 3, 2, 4, 1))
sketch7.addConstraint(Sketcher.Constraint("Coincident", 4, 2, 5, 1))
sketch7.addConstraint(Sketcher.Constraint("Coincident", 5, 2, 3, 1))
sketch7.addConstraint(Sketcher.Constraint("Vertical", 1))
sketch7.addConstraint(Sketcher.Constraint("Horizontal", 2))
sketch7.addConstraint(Sketcher.Constraint("Vertical", 3))
sketch7.addConstraint(Sketcher.Constraint("Horizontal", 5))
sketch7.addConstraint(Sketcher.Constraint("Horizontal", 0, 2, 3, 2))
sketch7.addConstraint(Sketcher.Constraint("Horizontal", 2, 2, 4, 2))
sketch7.addConstraint(Sketcher.Constraint("Equal", 2, 5))
sketch7.addConstraint(Sketcher.Constraint("DistanceX", 2, 2, 2, 1, Q("70 mm")))
sketch7.addConstraint(Sketcher.Constraint("DistanceY", 1, 2, 1, 1, Q("30 mm")))
sketch7.addConstraint(Sketcher.Constraint("DistanceY", 0, 2, -1, 1, Q("116 mm")))
sketch7.addConstraint(Sketcher.Constraint("DistanceX", 3, 2, 2, 2, Q("539 mm")))
sketch7.addConstraint(Sketcher.Constraint("DistanceX", -1, 1, 0, 2, Q("303.87 mm")))
pocket3 = doc.addObject("PartDesign::Pocket", "Pocket002")
body2.addObject(pocket3)
pocket3.Profile = sketch7
pocket3.Type = "ThroughAll"
pocket3.Reversed = True

doc.recompute()
